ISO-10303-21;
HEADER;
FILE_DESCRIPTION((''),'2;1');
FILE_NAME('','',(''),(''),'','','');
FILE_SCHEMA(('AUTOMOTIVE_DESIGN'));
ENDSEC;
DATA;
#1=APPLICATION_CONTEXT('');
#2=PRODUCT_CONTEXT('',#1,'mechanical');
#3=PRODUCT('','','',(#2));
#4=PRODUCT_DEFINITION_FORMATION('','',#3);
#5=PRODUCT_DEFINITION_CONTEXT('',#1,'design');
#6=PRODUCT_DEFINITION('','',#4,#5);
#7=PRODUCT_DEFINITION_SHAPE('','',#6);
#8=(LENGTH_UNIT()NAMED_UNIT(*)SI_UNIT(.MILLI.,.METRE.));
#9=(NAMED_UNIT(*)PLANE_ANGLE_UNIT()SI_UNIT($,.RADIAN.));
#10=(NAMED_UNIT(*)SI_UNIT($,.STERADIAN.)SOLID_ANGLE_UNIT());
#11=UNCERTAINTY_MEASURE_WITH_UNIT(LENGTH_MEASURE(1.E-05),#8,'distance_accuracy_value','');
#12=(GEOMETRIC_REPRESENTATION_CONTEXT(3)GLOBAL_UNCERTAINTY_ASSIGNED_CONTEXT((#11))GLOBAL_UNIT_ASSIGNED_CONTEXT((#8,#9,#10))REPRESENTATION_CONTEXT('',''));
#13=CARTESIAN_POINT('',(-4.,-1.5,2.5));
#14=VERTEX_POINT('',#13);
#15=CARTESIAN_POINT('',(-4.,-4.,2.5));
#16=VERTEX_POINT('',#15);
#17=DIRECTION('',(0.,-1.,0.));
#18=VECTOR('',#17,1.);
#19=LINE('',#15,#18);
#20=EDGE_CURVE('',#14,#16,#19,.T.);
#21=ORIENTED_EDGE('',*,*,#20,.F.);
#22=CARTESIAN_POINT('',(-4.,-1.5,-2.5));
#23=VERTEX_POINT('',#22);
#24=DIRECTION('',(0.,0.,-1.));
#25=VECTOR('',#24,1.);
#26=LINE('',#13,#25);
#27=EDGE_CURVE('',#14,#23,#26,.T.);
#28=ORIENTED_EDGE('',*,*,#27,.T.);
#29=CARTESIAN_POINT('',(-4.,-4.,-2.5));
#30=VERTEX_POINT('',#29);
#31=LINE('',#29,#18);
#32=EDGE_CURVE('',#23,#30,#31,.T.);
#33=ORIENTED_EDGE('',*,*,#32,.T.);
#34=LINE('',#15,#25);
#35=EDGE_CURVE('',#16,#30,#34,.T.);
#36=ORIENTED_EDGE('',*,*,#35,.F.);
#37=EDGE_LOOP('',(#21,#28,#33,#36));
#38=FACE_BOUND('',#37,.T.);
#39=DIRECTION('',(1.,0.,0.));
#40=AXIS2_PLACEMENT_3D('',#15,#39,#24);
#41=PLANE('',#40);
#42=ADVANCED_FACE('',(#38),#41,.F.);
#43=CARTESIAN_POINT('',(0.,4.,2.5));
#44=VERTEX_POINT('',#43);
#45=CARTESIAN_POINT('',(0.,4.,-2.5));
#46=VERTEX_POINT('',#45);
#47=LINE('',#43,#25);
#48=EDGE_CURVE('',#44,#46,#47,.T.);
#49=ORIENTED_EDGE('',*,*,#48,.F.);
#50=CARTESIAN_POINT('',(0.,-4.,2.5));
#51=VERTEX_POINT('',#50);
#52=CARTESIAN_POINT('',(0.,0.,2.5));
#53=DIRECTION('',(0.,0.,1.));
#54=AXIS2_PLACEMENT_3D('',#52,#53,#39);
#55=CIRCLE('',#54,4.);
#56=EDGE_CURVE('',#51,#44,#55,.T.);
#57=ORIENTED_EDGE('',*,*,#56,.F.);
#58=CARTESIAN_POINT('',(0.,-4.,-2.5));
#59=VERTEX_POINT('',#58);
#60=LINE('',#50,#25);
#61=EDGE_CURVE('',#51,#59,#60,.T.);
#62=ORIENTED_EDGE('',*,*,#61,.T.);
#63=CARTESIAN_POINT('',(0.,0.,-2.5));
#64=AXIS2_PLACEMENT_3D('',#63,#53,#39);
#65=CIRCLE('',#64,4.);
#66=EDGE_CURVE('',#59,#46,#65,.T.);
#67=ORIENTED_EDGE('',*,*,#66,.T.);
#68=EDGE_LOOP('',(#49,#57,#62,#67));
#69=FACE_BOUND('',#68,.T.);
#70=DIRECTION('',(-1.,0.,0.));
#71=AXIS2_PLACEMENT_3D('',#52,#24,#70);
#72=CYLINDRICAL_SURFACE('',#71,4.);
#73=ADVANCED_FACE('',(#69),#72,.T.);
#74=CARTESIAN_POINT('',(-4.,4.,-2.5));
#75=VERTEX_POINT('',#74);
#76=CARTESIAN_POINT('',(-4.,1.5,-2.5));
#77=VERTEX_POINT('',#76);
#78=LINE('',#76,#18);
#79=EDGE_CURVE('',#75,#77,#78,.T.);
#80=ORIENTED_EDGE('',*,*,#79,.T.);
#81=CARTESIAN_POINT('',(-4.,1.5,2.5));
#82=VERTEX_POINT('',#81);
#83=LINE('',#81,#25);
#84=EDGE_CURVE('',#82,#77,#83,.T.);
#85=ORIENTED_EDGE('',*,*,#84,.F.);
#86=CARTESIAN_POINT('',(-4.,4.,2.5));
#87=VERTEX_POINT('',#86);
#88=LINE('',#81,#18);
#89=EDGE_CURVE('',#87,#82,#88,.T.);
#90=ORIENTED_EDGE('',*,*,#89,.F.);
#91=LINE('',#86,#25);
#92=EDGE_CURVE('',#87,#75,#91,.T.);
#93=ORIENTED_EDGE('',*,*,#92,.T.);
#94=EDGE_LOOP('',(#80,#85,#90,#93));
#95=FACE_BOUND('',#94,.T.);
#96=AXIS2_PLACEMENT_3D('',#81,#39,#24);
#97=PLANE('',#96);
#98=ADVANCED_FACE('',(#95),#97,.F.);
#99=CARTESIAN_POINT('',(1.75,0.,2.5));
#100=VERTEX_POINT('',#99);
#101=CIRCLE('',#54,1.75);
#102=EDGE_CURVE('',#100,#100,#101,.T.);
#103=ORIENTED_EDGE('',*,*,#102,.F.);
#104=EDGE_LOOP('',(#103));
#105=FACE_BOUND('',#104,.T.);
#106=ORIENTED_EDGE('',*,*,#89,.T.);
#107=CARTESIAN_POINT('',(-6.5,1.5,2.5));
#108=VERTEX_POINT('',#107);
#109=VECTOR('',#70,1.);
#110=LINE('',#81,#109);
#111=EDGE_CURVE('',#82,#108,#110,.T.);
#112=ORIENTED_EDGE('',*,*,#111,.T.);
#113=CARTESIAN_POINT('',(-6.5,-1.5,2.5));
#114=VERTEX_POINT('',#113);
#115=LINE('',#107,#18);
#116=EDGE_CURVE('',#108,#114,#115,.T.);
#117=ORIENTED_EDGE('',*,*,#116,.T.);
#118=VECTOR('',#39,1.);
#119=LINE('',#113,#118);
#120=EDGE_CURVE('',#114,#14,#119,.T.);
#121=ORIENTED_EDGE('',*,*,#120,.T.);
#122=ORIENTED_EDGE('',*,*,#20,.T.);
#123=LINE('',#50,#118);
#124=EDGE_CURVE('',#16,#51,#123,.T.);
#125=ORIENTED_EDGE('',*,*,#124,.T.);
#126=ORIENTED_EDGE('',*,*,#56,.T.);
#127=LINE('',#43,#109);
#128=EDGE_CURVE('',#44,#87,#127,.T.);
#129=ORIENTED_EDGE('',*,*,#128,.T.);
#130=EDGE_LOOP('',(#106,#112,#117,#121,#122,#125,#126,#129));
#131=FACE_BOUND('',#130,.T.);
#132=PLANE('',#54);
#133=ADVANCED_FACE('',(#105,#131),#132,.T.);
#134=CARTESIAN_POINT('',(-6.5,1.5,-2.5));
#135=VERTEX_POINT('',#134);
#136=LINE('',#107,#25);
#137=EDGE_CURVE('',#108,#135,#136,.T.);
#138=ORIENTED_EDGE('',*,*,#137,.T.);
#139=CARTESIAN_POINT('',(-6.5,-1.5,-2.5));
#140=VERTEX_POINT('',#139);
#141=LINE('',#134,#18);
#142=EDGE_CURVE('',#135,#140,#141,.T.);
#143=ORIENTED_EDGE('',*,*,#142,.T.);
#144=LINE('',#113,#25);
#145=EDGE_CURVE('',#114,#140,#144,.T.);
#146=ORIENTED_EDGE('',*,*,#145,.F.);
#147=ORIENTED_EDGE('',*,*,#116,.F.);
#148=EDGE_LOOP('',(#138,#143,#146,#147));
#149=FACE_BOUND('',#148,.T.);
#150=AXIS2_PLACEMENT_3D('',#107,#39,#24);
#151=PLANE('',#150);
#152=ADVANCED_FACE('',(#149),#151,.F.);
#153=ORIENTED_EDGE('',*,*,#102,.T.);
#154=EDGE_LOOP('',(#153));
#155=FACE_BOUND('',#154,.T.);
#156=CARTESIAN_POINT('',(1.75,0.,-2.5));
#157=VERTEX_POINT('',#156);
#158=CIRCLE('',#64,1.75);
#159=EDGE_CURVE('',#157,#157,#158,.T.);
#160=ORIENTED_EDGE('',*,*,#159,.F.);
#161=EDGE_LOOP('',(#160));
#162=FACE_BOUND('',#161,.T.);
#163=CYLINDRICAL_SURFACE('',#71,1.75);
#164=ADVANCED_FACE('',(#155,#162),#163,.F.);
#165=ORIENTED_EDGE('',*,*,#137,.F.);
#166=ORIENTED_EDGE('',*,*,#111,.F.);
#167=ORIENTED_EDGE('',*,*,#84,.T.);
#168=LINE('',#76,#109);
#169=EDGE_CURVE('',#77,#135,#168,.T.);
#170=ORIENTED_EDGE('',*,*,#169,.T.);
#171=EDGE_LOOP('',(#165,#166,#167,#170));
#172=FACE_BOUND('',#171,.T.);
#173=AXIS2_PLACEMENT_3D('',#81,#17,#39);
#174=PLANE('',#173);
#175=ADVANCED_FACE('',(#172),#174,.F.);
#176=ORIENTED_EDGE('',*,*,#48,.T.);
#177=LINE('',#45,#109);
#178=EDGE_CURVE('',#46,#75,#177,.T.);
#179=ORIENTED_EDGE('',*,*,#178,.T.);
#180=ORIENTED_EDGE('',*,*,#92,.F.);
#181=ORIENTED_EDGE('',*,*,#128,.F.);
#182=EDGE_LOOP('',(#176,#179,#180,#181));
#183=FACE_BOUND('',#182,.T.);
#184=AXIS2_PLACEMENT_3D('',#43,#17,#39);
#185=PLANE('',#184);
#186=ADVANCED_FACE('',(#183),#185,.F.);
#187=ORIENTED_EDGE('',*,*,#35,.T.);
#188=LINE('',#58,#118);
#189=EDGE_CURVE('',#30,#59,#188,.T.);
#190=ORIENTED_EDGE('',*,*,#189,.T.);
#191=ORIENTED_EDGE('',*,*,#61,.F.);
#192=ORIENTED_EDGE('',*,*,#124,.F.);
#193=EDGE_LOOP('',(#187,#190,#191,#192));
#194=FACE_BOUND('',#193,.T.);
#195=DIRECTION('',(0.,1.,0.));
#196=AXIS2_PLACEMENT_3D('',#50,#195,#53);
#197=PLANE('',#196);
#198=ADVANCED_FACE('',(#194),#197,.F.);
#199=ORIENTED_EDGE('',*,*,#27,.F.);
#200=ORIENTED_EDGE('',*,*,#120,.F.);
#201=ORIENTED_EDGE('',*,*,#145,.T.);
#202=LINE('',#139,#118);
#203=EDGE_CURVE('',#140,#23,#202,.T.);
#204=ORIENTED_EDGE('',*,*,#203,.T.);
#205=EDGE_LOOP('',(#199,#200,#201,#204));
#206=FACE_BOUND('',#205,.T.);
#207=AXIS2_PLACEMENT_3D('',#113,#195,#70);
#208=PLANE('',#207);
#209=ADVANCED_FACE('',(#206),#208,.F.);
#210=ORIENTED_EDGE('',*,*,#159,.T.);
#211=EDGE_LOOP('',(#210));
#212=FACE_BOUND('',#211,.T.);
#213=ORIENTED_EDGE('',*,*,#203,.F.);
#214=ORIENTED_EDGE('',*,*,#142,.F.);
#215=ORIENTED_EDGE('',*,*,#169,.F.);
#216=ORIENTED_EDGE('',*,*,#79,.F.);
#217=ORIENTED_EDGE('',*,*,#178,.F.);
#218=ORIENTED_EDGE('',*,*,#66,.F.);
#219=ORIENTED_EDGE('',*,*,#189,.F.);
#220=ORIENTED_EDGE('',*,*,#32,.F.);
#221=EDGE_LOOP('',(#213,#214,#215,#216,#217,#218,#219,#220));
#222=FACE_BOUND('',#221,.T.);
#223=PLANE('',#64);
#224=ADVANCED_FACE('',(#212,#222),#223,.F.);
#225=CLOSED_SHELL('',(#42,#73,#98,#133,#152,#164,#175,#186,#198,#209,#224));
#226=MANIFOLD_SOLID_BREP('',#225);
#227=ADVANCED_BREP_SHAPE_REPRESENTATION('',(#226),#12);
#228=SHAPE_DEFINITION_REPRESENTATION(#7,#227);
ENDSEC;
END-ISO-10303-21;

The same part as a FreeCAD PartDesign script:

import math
import FreeCAD as App
import Part
import Sketcher
from FreeCAD import Vector
Q = App.Units.Quantity

doc = App.newDocument("Part")
body = doc.addObject("PartDesign::Body", "Body")

sketch1 = doc.addObject("Sketcher::SketchObject", "Sketch")
body.addObject(sketch1)
sketch1.AttachmentSupport = (doc.XY_Plane, [""])
sketch1.MapMode = "FlatFace"
sketch1.addGeometry([
    Part.LineSegment(Vector(-4, -4, 0), Vector(0, -4, 0)),
    Part.ArcOfCircle(Part.Circle(Vector(0, 0, 0), Vector(0, 0, 1), 4), math.radians(-90), math.radians(90)),
    Part.LineSegment(Vector(0, 4, 0), Vector(-4, 4, 0)),
    Part.LineSegment(Vector(-4, 4, 0), Vector(-4, 1.5, 0)),
    Part.LineSegment(Vector(-4, 1.5, 0), Vector(-6.5, 1.5, 0)),
    Part.LineSegment(Vector(-6.5, 1.5, 0), Vector(-6.5, -1.5, 0)),
    Part.LineSegment(Vector(-6.5, -1.5, 0), Vector(-4, -1.5, 0)),
    Part.LineSegment(Vector(-4, -1.5, 0), Vector(-4, -4, 0)),
    Part.Circle(Vector(0, 0, 0), Vector(0, 0, 1), 1.8),
], False)
sketch1.addConstraint([
    Sketcher.Constraint("Tangent", 0, 2, 1, 1),
    Sketcher.Constraint("Tangent", 1, 2, 2, 1),
    Sketcher.Constraint("Coincident", 2, 2, 3, 1),
    Sketcher.Constraint("Coincident", 3, 2, 4, 1),
    Sketcher.Constraint("Coincident", 4, 2, 5, 1),
    Sketcher.Constraint("Coincident", 5, 2, 6, 1),
    Sketcher.Constraint("Coincident", 6, 2, 7, 1),
    Sketcher.Constraint("Coincident", 7, 2, 0, 1),
    Sketcher.Constraint("Horizontal", 0),
    Sketcher.Constraint("Horizontal", 2),
    Sketcher.Constraint("Vertical", 3),
    Sketcher.Constraint("Horizontal", 4),
    Sketcher.Constraint("Vertical", 5),
    Sketcher.Constraint("Horizontal", 6),
    Sketcher.Constraint("Vertical", 7),
    Sketcher.Constraint("Coincident", 1, 3, -1, 1),
    Sketcher.Constraint("Coincident", 8, 3, -1, 1),
    Sketcher.Constraint("Symmetric", 3, 2, 6, 2, -1),
    Sketcher.Constraint("Equal", 6, 3),
    Sketcher.Constraint("Radius", 1, Q("4 mm")),
    Sketcher.Constraint("Diameter", 8, Q("3.5 mm")),
    Sketcher.Constraint("DistanceX", 0, 1, 0, 2, Q("4 mm")),
    Sketcher.Constraint("DistanceY", 5, 2, 5, 1, Q("3 mm")),
])
pad1 = doc.addObject("PartDesign::Pad", "Pad")
body.addObject(pad1)
pad1.Profile = sketch1
pad1.Length = 5
pad1.Midplane = True

doc.recompute()
